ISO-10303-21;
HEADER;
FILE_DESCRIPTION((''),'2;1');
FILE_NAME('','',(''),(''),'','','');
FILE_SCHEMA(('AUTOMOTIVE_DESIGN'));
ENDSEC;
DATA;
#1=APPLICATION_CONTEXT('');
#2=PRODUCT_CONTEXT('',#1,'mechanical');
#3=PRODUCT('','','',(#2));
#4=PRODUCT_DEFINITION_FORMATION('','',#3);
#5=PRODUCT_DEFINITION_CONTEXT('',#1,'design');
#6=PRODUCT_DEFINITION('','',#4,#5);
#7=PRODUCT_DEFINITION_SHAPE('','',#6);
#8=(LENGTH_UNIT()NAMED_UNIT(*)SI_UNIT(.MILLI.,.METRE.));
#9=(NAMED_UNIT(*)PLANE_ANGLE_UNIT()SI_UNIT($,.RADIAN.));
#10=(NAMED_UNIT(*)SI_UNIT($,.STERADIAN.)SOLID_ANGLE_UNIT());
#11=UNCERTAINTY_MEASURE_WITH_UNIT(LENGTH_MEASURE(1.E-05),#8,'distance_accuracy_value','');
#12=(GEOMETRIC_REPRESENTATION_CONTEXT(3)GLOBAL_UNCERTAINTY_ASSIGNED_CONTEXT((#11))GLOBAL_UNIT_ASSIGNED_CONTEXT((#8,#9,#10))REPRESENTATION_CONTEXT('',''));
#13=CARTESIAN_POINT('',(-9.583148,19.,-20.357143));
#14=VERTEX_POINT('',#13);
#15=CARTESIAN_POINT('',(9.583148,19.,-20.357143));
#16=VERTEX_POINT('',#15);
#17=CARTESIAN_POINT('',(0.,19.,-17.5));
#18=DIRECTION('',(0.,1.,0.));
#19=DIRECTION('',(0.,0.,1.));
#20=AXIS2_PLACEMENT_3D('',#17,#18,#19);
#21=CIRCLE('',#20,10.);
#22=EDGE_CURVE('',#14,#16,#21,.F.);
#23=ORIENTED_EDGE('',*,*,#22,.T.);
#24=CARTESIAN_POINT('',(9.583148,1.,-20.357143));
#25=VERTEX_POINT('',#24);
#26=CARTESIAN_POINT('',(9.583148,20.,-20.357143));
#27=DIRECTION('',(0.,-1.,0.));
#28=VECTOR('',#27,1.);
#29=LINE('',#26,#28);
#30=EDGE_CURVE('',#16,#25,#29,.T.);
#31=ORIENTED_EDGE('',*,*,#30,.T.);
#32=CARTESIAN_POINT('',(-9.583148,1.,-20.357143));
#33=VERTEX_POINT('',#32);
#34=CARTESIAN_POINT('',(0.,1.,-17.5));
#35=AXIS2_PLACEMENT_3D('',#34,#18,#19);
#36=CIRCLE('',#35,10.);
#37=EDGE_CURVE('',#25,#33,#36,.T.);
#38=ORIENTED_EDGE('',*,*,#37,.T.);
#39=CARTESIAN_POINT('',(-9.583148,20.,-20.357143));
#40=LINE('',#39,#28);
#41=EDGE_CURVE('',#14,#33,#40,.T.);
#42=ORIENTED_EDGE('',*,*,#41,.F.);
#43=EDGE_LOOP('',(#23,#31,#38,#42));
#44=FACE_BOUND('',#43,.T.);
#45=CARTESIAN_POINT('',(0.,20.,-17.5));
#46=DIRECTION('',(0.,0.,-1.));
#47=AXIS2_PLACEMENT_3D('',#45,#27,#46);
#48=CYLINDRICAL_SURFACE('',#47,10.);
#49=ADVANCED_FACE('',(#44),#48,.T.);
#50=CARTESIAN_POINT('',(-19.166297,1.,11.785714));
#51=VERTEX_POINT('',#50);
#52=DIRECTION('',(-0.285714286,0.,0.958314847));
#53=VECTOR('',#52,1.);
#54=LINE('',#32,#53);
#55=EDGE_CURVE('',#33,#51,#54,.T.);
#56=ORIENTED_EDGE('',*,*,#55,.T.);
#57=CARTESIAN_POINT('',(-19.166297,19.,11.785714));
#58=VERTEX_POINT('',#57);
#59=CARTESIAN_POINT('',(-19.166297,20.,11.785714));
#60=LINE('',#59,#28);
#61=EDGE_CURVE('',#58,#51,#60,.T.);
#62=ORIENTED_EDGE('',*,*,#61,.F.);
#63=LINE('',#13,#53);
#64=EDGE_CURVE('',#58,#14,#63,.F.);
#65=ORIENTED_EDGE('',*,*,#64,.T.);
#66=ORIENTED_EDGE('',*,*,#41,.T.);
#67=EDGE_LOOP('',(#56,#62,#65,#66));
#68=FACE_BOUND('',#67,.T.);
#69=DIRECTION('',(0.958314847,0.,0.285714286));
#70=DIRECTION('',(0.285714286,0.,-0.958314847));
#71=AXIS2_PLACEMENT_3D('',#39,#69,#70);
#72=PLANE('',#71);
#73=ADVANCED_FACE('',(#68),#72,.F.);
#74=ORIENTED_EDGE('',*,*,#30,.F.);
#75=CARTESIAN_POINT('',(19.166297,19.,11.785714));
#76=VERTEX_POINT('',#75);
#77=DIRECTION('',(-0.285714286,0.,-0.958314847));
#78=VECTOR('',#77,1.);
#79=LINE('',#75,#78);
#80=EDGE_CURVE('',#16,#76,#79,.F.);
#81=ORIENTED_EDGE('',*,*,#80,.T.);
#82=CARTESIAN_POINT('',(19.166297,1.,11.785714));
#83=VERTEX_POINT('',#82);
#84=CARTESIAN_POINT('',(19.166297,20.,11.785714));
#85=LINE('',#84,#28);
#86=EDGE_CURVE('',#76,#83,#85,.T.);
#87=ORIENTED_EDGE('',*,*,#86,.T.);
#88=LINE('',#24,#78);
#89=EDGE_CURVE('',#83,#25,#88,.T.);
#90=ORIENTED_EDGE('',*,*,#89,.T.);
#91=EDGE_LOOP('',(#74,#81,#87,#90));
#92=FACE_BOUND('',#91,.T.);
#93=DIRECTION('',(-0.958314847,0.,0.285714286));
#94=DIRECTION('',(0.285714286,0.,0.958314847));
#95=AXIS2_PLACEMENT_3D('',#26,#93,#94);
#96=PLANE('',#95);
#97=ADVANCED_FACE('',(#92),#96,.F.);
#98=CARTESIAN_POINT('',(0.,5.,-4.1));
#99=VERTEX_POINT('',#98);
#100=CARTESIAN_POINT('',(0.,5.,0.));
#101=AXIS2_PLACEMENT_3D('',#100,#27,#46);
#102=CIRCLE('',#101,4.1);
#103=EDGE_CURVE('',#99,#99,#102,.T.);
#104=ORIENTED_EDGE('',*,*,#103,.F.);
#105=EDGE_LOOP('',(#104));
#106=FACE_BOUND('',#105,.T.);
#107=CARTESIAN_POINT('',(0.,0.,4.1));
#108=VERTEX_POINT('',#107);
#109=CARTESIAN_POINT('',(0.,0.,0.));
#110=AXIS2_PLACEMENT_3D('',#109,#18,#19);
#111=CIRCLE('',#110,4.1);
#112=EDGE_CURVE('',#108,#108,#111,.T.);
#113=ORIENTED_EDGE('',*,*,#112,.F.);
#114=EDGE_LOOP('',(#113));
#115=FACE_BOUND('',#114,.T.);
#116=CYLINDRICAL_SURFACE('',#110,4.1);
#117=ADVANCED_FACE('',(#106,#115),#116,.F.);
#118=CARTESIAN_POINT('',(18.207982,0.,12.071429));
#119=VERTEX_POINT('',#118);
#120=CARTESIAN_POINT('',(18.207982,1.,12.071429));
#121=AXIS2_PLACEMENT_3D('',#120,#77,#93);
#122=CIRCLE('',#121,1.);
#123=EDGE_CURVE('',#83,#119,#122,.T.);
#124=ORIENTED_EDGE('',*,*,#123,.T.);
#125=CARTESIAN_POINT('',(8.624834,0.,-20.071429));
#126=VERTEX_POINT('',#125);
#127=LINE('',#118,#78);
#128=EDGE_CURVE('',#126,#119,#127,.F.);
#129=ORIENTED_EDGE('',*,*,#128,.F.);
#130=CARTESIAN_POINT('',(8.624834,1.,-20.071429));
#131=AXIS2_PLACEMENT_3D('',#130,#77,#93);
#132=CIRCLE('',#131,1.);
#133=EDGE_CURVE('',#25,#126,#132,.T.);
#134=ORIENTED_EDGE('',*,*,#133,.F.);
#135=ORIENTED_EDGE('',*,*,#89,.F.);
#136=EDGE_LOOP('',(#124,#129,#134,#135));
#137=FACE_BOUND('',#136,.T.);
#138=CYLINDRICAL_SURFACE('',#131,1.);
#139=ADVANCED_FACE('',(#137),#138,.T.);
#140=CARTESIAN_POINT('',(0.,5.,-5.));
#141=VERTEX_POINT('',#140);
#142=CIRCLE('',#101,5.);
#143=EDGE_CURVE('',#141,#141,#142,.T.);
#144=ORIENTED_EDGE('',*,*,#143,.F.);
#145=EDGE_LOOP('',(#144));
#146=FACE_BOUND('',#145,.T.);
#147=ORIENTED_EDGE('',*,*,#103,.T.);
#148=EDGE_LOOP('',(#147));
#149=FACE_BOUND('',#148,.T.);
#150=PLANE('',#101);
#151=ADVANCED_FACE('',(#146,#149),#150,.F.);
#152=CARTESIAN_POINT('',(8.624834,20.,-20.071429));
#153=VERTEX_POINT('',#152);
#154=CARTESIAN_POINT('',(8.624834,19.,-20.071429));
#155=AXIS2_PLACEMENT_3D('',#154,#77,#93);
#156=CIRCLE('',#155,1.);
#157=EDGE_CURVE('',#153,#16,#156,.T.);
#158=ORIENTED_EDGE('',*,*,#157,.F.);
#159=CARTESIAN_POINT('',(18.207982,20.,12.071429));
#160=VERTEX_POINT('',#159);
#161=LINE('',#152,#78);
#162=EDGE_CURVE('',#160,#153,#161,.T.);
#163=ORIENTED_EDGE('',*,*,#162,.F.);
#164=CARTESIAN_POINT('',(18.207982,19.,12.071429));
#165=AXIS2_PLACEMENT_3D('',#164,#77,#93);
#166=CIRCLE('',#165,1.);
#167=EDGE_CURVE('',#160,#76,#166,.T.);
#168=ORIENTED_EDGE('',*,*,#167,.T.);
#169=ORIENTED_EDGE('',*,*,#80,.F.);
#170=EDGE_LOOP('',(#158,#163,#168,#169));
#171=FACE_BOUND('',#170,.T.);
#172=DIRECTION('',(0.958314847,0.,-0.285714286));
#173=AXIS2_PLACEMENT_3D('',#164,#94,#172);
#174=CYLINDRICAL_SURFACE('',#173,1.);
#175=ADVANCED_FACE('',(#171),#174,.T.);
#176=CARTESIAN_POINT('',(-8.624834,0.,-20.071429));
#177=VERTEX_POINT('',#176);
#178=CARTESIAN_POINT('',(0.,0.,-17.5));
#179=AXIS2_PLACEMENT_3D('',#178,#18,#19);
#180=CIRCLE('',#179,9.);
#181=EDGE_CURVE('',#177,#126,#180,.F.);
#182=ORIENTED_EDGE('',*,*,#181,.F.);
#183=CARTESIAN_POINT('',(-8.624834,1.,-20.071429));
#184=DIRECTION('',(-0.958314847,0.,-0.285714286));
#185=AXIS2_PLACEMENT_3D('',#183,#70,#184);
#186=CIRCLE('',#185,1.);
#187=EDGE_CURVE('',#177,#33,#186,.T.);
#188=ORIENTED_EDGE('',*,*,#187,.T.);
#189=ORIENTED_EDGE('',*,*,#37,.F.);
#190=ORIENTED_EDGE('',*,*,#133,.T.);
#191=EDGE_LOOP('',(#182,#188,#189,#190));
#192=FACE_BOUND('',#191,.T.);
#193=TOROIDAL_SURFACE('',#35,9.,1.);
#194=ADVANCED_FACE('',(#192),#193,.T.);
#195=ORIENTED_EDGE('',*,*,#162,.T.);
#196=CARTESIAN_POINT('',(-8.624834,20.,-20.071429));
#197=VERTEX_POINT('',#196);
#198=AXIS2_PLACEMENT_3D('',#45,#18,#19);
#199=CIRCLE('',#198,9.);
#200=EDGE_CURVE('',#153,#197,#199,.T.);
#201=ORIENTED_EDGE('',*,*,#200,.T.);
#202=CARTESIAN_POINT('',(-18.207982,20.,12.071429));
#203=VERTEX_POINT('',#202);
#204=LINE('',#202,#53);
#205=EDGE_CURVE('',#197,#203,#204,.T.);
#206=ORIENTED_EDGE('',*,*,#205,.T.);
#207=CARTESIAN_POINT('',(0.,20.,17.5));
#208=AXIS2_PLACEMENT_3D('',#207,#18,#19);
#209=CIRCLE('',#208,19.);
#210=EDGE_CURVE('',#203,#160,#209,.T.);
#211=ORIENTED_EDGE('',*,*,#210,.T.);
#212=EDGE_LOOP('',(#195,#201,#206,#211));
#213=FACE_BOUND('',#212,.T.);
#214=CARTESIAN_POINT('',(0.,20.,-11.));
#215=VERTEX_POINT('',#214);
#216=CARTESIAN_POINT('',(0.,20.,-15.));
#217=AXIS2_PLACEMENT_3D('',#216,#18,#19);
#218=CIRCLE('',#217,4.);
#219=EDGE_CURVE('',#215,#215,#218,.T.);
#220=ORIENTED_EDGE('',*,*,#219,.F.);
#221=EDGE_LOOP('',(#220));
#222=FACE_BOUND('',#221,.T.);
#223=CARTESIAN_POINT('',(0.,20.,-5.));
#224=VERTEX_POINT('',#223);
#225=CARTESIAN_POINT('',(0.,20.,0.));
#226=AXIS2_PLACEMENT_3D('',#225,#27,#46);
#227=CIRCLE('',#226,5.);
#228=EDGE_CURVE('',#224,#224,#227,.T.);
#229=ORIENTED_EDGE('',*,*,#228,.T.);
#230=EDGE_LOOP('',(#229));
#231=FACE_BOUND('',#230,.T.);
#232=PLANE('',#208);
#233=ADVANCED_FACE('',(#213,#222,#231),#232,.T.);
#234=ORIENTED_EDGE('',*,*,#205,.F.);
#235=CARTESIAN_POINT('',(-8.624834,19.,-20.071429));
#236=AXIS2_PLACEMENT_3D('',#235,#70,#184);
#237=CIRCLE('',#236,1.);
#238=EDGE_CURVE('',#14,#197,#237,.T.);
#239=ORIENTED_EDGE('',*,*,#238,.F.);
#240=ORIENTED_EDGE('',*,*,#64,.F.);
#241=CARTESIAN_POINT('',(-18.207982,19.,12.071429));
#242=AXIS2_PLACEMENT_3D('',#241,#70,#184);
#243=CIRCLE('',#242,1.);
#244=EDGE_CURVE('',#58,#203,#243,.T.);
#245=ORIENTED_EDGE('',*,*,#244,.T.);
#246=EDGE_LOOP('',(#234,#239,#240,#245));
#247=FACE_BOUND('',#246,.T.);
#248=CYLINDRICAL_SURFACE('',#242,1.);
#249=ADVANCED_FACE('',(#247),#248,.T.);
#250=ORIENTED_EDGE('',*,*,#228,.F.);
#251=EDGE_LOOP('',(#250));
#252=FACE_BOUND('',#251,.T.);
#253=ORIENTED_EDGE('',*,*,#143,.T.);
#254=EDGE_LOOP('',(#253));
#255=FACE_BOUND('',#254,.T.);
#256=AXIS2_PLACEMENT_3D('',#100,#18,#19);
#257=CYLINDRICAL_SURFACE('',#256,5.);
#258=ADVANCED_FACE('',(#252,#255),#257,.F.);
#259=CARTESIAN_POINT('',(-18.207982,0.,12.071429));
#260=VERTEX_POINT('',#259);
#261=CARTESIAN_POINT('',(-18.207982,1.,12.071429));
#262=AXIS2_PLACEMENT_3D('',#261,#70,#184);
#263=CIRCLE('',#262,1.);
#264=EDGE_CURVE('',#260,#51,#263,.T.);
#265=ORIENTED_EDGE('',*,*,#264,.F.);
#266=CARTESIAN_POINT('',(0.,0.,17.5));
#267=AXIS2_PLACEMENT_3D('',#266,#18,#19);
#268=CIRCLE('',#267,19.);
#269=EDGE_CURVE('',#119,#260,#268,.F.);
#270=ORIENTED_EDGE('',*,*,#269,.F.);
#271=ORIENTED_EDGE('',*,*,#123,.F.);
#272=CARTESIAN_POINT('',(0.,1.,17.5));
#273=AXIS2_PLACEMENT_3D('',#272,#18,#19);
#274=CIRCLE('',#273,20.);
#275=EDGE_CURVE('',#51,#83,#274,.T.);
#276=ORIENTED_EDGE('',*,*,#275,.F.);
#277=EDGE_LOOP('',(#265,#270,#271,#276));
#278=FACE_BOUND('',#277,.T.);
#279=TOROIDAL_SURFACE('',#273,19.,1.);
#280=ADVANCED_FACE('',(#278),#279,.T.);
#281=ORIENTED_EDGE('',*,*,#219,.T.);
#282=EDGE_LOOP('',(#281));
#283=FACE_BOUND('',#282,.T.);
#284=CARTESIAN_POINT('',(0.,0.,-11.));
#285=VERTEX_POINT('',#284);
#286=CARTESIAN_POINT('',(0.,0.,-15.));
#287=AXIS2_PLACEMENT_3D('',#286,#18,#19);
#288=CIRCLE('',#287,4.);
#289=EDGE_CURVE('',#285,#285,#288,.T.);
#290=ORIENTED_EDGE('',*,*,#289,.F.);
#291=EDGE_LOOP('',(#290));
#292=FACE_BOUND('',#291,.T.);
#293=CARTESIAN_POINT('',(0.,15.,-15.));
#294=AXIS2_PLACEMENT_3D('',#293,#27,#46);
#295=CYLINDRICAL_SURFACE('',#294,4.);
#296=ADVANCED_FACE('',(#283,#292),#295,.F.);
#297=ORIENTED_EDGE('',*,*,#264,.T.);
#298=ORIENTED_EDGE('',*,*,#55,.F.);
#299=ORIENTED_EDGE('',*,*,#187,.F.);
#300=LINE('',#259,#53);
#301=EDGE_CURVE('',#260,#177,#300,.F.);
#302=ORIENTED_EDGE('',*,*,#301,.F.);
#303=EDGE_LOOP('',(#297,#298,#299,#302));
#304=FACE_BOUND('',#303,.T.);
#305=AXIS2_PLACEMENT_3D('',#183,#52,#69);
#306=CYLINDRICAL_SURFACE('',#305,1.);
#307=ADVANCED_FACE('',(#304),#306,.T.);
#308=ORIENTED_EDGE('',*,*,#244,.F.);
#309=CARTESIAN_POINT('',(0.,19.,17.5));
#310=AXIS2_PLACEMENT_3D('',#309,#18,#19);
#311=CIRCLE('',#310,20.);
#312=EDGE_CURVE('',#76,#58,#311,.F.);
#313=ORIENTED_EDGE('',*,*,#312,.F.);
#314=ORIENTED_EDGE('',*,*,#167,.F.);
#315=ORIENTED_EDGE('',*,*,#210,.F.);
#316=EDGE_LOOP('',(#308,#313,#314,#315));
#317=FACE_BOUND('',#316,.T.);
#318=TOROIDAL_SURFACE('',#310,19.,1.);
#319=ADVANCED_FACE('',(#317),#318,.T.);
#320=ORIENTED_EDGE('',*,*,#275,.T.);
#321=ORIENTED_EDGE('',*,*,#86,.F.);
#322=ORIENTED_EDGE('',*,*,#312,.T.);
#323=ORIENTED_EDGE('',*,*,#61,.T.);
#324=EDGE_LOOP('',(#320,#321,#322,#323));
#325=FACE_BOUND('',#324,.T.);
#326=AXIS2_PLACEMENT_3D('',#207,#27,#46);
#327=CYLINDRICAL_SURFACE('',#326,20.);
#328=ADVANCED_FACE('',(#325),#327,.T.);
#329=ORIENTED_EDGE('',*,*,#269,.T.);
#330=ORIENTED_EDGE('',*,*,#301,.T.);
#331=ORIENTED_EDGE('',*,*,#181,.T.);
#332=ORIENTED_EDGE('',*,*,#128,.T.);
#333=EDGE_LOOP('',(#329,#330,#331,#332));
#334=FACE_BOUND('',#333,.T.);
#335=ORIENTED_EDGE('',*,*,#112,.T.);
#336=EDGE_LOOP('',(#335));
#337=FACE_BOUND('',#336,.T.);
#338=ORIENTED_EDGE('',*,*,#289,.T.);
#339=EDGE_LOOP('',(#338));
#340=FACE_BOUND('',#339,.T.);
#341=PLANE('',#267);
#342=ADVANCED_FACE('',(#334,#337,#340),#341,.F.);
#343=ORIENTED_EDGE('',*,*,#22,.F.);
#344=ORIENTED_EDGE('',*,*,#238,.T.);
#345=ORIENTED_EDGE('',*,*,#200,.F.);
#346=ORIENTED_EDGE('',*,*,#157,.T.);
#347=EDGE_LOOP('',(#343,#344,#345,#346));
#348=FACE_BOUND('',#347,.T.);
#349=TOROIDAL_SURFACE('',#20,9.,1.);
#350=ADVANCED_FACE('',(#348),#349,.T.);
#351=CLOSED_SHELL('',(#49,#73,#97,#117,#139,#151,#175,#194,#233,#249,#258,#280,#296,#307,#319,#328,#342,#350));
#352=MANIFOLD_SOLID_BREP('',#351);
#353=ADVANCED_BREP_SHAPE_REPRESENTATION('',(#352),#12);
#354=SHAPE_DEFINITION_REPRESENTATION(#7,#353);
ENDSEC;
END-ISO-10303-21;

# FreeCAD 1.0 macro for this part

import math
import FreeCAD as App
import Part
import Sketcher

V = App.Vector
Q = App.Units.Quantity


def edges_at(feature, points):
    """Names of the edges that pass closest to the given points."""
    edges = feature.Shape.Edges
    near = lambda p: min(range(len(edges)), key=lambda i: edges[i].distToShape(Part.Vertex(*p))[0])
    return sorted({f"Edge{near(p) + 1}" for p in points})

doc = App.newDocument("Part")
params = doc.addObject("Spreadsheet::Sheet", "Params")
for row, (alias, value) in enumerate([
    ("sketch1_radius", "20 mm"),
    ("sketch1_radius2", "10 mm"),
    ("pad1_length", "20 mm"),
    ("fillet_radius", "1 mm"),
    ("sketch2_diameter", "8 mm"),
    ("pocket1_length", "15 mm"),
    ("sketch3_diameter", "10 mm"),
    ("pocket2_length", "15 mm"),
    ("sketch4_diameter", "8 mm"),
    ("sketch4_diameter2", "8.2 mm"),
], start=1):
    params.set(f"A{row}", alias)
    params.set(f"B{row}", "=" + value)
    params.setAlias(f"B{row}", alias)

body = doc.addObject("PartDesign::Body", "Body")

# Sketch on XZ plane
sketch1 = body.newObject("Sketcher::SketchObject", "Sketch")
sketch1.AttachmentSupport = (doc.getObject("XZ_Plane"), [""])
sketch1.MapMode = "FlatFace"
sketch1.addGeometry([
    Part.LineSegment(V(-10, -20, 0), V(-19, 12, 0)),
    Part.ArcOfCircle(Part.Circle(V(0, 18, 0), V(0, 0, 1), 20), math.radians(-17), math.radians(197)),
    Part.LineSegment(V(19, 12, 0), V(10, -20, 0)),
    Part.ArcOfCircle(Part.Circle(V(0, -18, 0), V(0, 0, 1), 10), math.radians(-163), math.radians(-17)),
], False)
sketch1.addConstraint([
    Sketcher.Constraint("Tangent", 0, 2, 1, 2),
    Sketcher.Constraint("Tangent", 1, 1, 2, 1),
    Sketcher.Constraint("Tangent", 2, 2, 3, 2),
    Sketcher.Constraint("Tangent", 3, 1, 0, 1),
    Sketcher.Constraint("Symmetric", 1, 3, 3, 3, -1, 1),
    Sketcher.Constraint("PointOnObject", 1, 3, -2),
    Sketcher.Constraint("Radius", 1, Q("20 mm")),
    Sketcher.Constraint("Radius", 3, Q("10 mm")),
    Sketcher.Constraint("DistanceY", 3, 3, 1, 3, Q("35 mm")),
])
sketch1.setExpression("Constraints[6]", "Params.sketch1_radius")
sketch1.setExpression("Constraints[7]", "Params.sketch1_radius2")
pad1 = body.newObject("PartDesign::Pad", "Pad")
pad1.Profile = sketch1
pad1.setExpression("Length", "Params.pad1_length")
pad1.Reversed = True
doc.recompute()

fillet = body.newObject("PartDesign::Fillet", "Fillet")
fillet.Base = (pad1, edges_at(pad1, [
    (0, 20, -27.5),
    (-14.375, 20, -4.286),
    (0, 20, 37.5),
    (-14.375, 0, -4.286),
    (0, 0, -27.5),
    (14.375, 0, -4.286),
    (0, 0, 37.5),
    (14.375, 20, -4.286),
]))
fillet.setExpression("Radius", "Params.fillet_radius")

# Sketch on XZ plane
sketch2 = body.newObject("Sketcher::SketchObject", "Sketch001")
sketch2.AttachmentSupport = (doc.getObject("XZ_Plane"), [""])
sketch2.MapMode = "FlatFace"
sketch2.addGeometry(Part.Circle(V(0, -15, 0), V(0, 0, 1), 4), False)
sketch2.addConstraint([
    Sketcher.Constraint("PointOnObject", 0, 3, -2),
    Sketcher.Constraint("Diameter", 0, Q("8 mm")),
    Sketcher.Constraint("DistanceY", 0, 3, -1, 1, Q("15 mm")),
])
sketch2.setExpression("Constraints[1]", "Params.sketch2_diameter")
pocket1 = body.newObject("PartDesign::Pocket", "Pocket")
pocket1.Profile = sketch2
pocket1.setExpression("Length", "Params.pocket1_length")

# Sketch on XZ plane
sketch3 = body.newObject("Sketcher::SketchObject", "Sketch002")
sketch3.AttachmentSupport = (doc.getObject("XZ_Plane"), [""])
sketch3.MapMode = "FlatFace"
sketch3.AttachmentOffset = App.Placement(V(0, 0, -20), App.Rotation())
sketch3.addGeometry(Part.Circle(V(0, 0, 0), V(0, 0, 1), 5), False)
sketch3.addConstraint([
    Sketcher.Constraint("Coincident", 0, 3, -1, 1),
    Sketcher.Constraint("Diameter", 0, Q("10 mm")),
])
sketch3.setExpression("Constraints[1]", "Params.sketch3_diameter")
pocket2 = body.newObject("PartDesign::Pocket", "Pocket001")
pocket2.Profile = sketch3
pocket2.setExpression("Length", "Params.pocket2_length")
pocket2.Reversed = True

# Sketch on XZ plane
sketch4 = body.newObject("Sketcher::SketchObject", "Sketch003")
sketch4.AttachmentSupport = (doc.getObject("XZ_Plane"), [""])
sketch4.MapMode = "FlatFace"
sketch4.AttachmentOffset = App.Placement(V(0, 0, -5), App.Rotation())
sketch4.addGeometry([
    Part.Circle(V(0, 0, 0), V(0, 0, 1), 4.1),
    Part.Circle(V(0, -15, 0), V(0, 0, 1), 4),
], False)
sketch4.addConstraint([
    Sketcher.Constraint("Coincident", 0, 3, -1, 1),
    Sketcher.Constraint("PointOnObject", 1, 3, -2),
    Sketcher.Constraint("Diameter", 1, Q("8 mm")),
    Sketcher.Constraint("Diameter", 0, Q("8.2 mm")),
    Sketcher.Constraint("DistanceY", 1, 3, -1, 1, Q("15 mm")),
])
sketch4.setExpression("Constraints[2]", "Params.sketch4_diameter")
sketch4.setExpression("Constraints[3]", "Params.sketch4_diameter2")
pocket3 = body.newObject("PartDesign::Pocket", "Pocket002")
pocket3.Profile = sketch4
pocket3.Type = "ThroughAll"
pocket3.Midplane = True

doc.recompute()
